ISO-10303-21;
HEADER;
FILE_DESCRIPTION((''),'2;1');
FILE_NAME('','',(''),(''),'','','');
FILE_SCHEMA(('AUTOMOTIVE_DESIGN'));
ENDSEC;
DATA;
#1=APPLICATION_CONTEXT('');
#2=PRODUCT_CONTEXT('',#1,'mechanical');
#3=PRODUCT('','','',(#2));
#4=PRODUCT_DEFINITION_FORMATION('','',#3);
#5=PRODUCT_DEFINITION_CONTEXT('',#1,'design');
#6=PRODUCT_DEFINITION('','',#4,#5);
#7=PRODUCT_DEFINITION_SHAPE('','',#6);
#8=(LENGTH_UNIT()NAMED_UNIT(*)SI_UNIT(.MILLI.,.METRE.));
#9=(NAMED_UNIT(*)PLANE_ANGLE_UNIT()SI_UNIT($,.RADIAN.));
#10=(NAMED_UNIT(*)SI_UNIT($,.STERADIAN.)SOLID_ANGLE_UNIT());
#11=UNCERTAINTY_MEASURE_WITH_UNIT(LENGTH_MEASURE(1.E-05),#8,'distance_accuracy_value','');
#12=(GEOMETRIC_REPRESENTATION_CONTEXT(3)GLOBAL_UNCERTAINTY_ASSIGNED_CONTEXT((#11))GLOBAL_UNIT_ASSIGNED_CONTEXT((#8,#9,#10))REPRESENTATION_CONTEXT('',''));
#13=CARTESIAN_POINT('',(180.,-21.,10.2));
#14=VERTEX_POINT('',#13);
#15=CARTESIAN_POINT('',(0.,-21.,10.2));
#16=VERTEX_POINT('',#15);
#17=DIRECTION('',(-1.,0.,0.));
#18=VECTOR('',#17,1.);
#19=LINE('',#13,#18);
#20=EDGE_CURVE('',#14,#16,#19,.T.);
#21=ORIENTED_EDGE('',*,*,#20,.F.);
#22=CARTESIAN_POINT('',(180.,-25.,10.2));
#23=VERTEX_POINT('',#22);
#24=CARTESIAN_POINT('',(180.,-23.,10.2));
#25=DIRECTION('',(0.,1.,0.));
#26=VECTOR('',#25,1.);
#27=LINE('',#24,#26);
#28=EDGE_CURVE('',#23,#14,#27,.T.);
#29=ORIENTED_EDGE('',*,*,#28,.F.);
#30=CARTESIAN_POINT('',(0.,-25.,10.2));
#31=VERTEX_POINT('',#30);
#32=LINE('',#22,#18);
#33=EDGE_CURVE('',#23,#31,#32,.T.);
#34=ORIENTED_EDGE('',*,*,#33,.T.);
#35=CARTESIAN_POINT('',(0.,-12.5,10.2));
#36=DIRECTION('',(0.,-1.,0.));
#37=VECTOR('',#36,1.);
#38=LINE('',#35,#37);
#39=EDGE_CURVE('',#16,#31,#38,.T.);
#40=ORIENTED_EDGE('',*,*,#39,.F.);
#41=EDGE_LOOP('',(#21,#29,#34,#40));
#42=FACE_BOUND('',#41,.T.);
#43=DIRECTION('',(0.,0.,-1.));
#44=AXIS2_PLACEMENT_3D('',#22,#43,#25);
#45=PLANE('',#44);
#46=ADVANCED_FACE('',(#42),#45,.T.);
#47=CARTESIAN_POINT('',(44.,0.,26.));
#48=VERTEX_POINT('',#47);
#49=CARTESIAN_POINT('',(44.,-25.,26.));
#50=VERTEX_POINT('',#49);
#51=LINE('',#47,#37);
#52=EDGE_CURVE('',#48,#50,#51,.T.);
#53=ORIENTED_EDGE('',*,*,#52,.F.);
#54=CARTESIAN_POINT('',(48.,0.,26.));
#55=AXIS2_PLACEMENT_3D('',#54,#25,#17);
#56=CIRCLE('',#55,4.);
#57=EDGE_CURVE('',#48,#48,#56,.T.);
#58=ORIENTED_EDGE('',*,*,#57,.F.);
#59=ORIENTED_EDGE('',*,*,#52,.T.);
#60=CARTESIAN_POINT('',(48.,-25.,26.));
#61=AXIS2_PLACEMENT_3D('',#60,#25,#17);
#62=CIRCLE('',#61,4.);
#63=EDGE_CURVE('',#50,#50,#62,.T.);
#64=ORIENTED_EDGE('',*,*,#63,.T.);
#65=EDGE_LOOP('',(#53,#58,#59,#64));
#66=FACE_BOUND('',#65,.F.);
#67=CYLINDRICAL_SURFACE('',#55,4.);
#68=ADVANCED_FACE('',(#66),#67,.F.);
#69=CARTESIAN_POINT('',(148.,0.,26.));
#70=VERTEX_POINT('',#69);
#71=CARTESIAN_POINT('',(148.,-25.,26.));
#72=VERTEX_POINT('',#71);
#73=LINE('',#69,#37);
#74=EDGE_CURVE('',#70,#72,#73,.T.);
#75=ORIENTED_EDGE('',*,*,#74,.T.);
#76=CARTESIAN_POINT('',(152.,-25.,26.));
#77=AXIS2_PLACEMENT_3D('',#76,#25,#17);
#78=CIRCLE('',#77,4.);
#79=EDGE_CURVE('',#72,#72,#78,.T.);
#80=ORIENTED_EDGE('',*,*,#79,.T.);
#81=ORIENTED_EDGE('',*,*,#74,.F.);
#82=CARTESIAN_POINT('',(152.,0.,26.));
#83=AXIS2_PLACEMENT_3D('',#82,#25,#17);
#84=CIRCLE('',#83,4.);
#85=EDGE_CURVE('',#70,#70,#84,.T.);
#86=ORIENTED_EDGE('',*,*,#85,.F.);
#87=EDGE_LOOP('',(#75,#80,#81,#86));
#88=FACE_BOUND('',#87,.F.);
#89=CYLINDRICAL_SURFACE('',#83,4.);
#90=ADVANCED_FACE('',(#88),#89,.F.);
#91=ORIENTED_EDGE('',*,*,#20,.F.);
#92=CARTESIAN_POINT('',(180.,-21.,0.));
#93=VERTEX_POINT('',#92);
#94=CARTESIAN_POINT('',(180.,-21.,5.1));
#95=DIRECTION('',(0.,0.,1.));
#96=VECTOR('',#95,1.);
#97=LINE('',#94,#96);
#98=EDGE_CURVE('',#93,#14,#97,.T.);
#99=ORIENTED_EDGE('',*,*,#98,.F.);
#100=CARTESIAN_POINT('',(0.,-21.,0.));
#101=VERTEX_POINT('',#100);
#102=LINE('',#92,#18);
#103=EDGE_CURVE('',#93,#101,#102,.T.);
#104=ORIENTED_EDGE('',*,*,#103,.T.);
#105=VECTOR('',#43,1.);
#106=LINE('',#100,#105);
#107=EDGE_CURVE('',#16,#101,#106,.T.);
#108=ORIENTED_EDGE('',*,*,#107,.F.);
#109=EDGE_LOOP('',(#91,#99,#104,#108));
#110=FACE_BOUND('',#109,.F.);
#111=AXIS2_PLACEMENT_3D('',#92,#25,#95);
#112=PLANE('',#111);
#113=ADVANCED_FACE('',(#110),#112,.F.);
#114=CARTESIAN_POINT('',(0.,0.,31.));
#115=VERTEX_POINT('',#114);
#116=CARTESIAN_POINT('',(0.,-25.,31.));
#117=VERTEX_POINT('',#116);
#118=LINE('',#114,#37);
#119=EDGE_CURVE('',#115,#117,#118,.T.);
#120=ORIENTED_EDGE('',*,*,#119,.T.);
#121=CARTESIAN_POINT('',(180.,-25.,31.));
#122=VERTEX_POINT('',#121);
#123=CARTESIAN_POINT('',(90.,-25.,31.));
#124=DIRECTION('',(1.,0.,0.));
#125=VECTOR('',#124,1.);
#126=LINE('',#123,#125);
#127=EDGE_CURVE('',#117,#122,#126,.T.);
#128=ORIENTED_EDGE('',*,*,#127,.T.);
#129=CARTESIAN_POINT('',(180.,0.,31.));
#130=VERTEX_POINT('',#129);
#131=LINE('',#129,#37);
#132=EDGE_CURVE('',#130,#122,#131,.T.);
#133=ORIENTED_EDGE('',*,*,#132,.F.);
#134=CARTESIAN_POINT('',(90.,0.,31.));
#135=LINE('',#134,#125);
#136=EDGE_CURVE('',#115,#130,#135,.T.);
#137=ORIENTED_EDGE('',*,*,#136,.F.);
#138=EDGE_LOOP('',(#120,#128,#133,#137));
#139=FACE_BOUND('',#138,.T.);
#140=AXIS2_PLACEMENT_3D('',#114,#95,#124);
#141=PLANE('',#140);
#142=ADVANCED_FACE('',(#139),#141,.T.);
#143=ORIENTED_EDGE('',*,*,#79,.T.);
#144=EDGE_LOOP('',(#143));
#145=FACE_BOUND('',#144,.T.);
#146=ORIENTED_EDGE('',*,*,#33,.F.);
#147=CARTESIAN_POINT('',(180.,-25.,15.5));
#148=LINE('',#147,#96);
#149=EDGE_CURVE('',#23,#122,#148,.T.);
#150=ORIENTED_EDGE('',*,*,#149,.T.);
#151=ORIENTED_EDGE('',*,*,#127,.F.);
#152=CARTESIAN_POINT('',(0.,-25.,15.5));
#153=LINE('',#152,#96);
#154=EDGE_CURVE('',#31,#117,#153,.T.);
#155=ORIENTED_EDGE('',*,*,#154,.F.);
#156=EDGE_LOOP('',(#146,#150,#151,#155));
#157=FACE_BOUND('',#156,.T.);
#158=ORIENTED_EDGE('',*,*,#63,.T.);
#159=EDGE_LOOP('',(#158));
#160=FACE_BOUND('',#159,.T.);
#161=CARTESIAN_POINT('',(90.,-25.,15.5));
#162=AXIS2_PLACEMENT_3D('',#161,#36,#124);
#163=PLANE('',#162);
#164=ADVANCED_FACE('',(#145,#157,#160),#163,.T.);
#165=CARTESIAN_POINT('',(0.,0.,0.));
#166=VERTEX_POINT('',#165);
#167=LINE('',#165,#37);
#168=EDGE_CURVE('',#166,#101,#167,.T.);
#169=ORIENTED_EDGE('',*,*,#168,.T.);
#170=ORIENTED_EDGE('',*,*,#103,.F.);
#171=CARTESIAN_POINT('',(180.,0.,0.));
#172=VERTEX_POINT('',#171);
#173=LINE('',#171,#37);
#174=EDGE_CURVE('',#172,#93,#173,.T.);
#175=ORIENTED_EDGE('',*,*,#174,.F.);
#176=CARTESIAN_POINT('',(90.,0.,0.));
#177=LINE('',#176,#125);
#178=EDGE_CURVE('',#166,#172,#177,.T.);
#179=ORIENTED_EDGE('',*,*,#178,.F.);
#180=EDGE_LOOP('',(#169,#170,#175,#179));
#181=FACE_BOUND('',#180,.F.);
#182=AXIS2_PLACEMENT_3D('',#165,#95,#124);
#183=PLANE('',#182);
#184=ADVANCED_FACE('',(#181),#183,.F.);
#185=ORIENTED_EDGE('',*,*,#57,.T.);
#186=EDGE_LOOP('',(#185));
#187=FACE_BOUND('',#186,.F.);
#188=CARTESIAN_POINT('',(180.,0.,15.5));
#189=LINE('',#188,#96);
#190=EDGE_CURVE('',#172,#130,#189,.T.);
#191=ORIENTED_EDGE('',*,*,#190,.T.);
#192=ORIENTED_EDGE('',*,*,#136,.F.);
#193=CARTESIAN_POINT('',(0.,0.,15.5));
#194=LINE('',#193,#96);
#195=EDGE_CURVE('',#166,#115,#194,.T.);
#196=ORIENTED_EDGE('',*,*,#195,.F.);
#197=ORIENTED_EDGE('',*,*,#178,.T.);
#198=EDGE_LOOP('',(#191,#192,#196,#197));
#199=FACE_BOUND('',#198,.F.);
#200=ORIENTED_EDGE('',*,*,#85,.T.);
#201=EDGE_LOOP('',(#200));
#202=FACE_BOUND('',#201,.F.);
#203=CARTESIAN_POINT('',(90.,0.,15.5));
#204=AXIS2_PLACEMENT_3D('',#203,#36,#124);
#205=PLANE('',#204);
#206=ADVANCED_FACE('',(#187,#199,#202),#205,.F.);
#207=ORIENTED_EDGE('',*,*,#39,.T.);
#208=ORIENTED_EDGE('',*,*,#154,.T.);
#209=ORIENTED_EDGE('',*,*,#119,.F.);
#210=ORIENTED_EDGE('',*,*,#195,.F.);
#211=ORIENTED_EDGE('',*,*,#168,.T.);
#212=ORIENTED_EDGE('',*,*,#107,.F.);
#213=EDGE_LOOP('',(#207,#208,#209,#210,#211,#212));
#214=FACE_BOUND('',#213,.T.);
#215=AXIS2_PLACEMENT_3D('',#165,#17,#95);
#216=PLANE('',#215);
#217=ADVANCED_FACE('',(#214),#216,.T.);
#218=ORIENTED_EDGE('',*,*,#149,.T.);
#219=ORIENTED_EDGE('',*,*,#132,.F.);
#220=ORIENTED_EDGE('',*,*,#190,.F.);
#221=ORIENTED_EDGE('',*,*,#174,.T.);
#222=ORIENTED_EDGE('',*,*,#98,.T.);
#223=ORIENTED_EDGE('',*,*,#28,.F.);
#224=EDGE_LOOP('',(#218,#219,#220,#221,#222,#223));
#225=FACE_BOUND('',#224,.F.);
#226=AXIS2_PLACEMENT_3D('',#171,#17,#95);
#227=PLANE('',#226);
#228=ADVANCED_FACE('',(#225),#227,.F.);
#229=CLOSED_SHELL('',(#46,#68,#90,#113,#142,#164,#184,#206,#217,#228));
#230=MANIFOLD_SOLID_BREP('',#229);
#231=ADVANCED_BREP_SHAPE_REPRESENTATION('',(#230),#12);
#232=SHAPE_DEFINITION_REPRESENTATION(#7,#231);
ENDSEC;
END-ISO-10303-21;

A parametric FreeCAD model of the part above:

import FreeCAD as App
import Part
import Sketcher
Q = App.Units.Quantity

doc = App.newDocument("Part")
params = doc.addObject("Spreadsheet::Sheet", "Params")
for row, (alias, value) in enumerate([
    ("sketch1_width", "180 mm"),
    ("sketch1_height", "31 mm"),
    ("pad1_length", "25 mm"),
    ("sketch2_diameter", "8 mm"),
    ("sketch3_width", "4 mm"),
    ("sketch3_height", "10.2 mm"),
], start=1):
    params.set(f"A{row}", alias)
    params.set(f"B{row}", "=" + value)
    params.setAlias(f"B{row}", alias)

body = doc.addObject("PartDesign::Body", "Body")

# Sketch on XZ plane
sketch1 = doc.addObject("Sketcher::SketchObject", "Sketch")
body.addObject(sketch1)
sketch1.AttachmentSupport = (doc.XZ_Plane, [""])
sketch1.MapMode = "FlatFace"
sketch1.addGeometry([
    Part.LineSegment(App.Vector(0, 31, 0), App.Vector(0, 0, 0)),
    Part.LineSegment(App.Vector(0, 0, 0), App.Vector(180, 0, 0)),
    Part.LineSegment(App.Vector(180, 0, 0), App.Vector(180, 31, 0)),
    Part.LineSegment(App.Vector(180, 31, 0), App.Vector(0, 31, 0)),
], False)
sketch1.addConstraint([
    Sketcher.Constraint("Coincident", 0, 2, 1, 1),
    Sketcher.Constraint("Coincident", 1, 2, 2, 1),
    Sketcher.Constraint("Coincident", 2, 2, 3, 1),
    Sketcher.Constraint("Coincident", 3, 2, 0, 1),
    Sketcher.Constraint("Vertical", 0),
    Sketcher.Constraint("Horizontal", 1),
    Sketcher.Constraint("Vertical", 2),
    Sketcher.Constraint("Horizontal", 3),
    Sketcher.Constraint("Coincident", 0, 2, -1, 1),
    Sketcher.Constraint("DistanceX", 1, 1, 1, 2, Q("180 mm")),
    Sketcher.Constraint("DistanceY", 0, 2, 0, 1, Q("31 mm")),
])
sketch1.setExpression("Constraints[9]", "Params.sketch1_width")
sketch1.setExpression("Constraints[10]", "Params.sketch1_height")
pad1 = doc.addObject("PartDesign::Pad", "Pad")
body.addObject(pad1)
pad1.Profile = sketch1
pad1.setExpression("Length", "Params.pad1_length")

# Sketch on XZ plane
sketch2 = doc.addObject("Sketcher::SketchObject", "Sketch001")
body.addObject(sketch2)
sketch2.AttachmentSupport = (doc.XZ_Plane, [""])
sketch2.MapMode = "FlatFace"
sketch2.addGeometry([
    Part.Circle(App.Vector(152, 26, 0), App.Vector(0, 0, 1), 4),
    Part.Circle(App.Vector(48, 26, 0), App.Vector(0, 0, 1), 4),
], False)
sketch2.addConstraint([
    Sketcher.Constraint("Equal", 0, 1),
    Sketcher.Constraint("Horizontal", 0, 3, 1, 3),
    Sketcher.Constraint("Diameter", 0, Q("8 mm")),
    Sketcher.Constraint("DistanceX", -1, 1, 0, 3, Q("152 mm")),
    Sketcher.Constraint("DistanceY", -1, 1, 0, 3, Q("26 mm")),
    Sketcher.Constraint("DistanceX", -1, 1, 1, 3, Q("48 mm")),
])
sketch2.setExpression("Constraints[2]", "Params.sketch2_diameter")
pocket1 = doc.addObject("PartDesign::Pocket", "Pocket")
body.addObject(pocket1)
pocket1.Profile = sketch2
pocket1.Type = "ThroughAll"
pocket1.Reversed = True

# Sketch on YZ plane
sketch3 = doc.addObject("Sketcher::SketchObject", "Sketch002")
body.addObject(sketch3)
sketch3.AttachmentSupport = (doc.YZ_Plane, [""])
sketch3.MapMode = "FlatFace"
sketch3.AttachmentOffset = App.Placement(App.Vector(0, 0, 180), App.Rotation())
sketch3.addGeometry([
    Part.LineSegment(App.Vector(-25, 10.2, 0), App.Vector(-25, 0, 0)),
    Part.LineSegment(App.Vector(-25, 0, 0), App.Vector(-21, 0, 0)),
    Part.LineSegment(App.Vector(-21, 0, 0), App.Vector(-21, 10.2, 0)),
    Part.LineSegment(App.Vector(-21, 10.2, 0), App.Vector(-25, 10.2, 0)),
], False)
sketch3.addConstraint([
    Sketcher.Constraint("Coincident", 0, 2, 1, 1),
    Sketcher.Constraint("Coincident", 1, 2, 2, 1),
    Sketcher.Constraint("Coincident", 2, 2, 3, 1),
    Sketcher.Constraint("Coincident", 3, 2, 0, 1),
    Sketcher.Constraint("Vertical", 0),
    Sketcher.Constraint("Horizontal", 1),
    Sketcher.Constraint("Vertical", 2),
    Sketcher.Constraint("Horizontal", 3),
    Sketcher.Constraint("PointOnObject", 0, 2, -1),
    Sketcher.Constraint("DistanceX", 1, 1, 1, 2, Q("4 mm")),
    Sketcher.Constraint("DistanceY", 0, 2, 0, 1, Q("10.2 mm")),
    Sketcher.Constraint("DistanceX", 0, 2, -1, 1, Q("25 mm")),
])
sketch3.setExpression("Constraints[9]", "Params.sketch3_width")
sketch3.setExpression("Constraints[10]", "Params.sketch3_height")
pocket2 = doc.addObject("PartDesign::Pocket", "Pocket001")
body.addObject(pocket2)
pocket2.Profile = sketch3
pocket2.Type = "ThroughAll"

doc.recompute()
